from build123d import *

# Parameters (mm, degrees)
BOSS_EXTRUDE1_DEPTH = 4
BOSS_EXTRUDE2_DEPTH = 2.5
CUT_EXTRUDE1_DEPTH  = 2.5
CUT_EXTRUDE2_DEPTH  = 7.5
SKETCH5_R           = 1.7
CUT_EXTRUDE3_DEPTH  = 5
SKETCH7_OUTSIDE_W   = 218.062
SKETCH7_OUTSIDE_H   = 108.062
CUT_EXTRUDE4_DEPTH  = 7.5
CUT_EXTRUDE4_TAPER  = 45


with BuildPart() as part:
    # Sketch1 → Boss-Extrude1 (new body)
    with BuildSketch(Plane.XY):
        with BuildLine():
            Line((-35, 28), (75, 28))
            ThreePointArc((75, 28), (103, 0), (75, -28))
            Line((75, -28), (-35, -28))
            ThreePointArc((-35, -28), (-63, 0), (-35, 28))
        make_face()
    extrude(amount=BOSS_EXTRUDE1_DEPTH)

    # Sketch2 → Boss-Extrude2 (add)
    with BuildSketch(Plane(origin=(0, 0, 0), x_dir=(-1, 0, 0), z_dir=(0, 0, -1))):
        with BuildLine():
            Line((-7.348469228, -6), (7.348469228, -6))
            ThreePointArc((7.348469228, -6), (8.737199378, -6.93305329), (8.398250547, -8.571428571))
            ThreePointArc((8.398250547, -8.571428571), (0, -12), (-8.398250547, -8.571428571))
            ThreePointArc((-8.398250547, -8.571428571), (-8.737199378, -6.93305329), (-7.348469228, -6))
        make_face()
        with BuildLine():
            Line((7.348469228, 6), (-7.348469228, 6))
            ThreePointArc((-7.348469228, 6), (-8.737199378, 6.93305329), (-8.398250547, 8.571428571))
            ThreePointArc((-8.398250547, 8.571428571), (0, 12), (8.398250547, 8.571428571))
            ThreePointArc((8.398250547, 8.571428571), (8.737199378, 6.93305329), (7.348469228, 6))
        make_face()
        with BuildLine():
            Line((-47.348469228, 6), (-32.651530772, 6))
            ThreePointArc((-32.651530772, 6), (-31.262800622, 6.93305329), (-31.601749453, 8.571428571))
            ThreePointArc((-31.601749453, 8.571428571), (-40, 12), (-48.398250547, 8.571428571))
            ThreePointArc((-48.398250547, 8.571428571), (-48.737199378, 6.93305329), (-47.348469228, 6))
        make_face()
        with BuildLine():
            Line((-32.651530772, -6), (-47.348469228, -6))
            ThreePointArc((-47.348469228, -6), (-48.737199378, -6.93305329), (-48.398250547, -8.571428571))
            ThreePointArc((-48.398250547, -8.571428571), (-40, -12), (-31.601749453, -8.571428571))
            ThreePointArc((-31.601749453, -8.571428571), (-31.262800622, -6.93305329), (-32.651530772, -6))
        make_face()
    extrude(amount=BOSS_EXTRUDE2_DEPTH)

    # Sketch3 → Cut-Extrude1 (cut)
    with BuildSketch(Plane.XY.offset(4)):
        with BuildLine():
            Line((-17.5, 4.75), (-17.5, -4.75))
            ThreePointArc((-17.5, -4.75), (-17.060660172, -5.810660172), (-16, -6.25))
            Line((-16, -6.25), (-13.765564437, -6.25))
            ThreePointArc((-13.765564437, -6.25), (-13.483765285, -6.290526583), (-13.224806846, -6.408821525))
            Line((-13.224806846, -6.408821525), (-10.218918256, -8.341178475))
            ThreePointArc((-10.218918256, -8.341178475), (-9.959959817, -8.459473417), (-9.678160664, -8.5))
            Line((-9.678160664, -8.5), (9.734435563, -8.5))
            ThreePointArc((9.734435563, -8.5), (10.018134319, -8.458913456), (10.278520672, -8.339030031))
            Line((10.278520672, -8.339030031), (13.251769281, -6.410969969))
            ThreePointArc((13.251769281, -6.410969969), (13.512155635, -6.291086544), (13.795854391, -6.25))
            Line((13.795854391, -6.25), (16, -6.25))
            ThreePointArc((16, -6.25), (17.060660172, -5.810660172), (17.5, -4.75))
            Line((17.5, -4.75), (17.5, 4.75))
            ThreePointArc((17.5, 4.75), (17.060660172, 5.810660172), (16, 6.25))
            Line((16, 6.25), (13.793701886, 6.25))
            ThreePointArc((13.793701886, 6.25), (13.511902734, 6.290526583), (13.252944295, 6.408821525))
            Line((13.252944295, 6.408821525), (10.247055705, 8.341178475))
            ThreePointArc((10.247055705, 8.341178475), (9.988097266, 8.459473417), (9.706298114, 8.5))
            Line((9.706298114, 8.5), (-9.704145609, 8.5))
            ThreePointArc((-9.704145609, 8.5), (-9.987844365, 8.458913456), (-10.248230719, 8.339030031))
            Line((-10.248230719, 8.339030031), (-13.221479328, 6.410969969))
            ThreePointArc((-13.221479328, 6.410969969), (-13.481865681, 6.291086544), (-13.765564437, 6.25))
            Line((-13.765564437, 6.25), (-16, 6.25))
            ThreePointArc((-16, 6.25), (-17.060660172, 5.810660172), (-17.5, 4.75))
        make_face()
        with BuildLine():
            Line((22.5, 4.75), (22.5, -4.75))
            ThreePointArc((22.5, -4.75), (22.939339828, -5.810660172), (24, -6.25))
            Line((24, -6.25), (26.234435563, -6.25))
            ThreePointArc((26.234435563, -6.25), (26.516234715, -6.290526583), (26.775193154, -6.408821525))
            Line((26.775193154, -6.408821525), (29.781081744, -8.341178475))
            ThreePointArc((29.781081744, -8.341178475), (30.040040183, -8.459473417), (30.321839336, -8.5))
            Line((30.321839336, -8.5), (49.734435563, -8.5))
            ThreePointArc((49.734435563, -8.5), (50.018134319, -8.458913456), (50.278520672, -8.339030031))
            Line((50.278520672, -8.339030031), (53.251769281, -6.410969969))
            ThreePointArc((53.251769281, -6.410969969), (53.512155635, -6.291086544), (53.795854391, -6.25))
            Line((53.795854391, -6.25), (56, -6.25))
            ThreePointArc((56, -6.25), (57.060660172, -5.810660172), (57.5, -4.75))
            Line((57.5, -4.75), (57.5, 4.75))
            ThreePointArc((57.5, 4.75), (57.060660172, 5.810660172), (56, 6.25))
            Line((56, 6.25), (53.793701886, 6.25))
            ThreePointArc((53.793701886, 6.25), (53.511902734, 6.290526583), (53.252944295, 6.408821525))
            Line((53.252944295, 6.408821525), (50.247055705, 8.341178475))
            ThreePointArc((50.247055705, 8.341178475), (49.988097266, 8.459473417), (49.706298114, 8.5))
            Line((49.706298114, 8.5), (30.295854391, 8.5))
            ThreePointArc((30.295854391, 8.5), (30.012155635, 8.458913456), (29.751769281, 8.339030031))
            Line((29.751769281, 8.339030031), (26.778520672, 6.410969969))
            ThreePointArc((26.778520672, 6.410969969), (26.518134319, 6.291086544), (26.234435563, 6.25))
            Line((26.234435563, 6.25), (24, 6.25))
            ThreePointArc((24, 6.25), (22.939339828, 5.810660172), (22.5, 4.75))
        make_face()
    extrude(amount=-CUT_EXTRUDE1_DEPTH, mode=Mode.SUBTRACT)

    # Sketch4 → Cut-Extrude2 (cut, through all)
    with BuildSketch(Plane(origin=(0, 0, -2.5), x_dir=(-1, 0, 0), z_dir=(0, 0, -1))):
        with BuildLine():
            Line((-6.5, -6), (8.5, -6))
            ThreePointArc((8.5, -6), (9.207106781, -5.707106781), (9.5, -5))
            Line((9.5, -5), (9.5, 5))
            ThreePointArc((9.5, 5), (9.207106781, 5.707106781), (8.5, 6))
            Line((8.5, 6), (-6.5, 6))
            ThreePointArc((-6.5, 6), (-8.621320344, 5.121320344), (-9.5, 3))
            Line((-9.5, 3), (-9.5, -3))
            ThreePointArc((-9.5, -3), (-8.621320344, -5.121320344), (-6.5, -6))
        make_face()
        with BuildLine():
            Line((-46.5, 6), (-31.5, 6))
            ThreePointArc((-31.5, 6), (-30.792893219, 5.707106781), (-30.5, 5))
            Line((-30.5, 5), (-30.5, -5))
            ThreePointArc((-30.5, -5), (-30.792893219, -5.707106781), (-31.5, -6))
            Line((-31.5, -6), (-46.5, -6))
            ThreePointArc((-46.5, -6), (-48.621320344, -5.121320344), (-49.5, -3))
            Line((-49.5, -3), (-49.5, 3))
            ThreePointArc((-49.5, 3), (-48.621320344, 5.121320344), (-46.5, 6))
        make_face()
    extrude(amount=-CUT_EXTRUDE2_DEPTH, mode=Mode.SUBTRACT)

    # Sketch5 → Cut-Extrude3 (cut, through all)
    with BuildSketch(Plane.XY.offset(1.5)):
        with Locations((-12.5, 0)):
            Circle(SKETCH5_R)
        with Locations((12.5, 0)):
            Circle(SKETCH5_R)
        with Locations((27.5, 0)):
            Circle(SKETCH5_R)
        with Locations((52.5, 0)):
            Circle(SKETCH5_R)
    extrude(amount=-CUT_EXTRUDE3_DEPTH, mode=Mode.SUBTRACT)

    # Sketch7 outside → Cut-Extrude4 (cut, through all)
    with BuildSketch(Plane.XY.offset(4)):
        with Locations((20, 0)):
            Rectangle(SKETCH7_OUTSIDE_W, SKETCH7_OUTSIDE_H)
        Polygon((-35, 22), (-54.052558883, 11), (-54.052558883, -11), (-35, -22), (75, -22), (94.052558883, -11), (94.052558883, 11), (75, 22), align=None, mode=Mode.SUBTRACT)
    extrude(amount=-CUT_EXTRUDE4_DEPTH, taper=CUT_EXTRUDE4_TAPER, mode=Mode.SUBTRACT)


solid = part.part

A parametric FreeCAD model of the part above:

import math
import FreeCAD as App
import Part
import Sketcher
Q = App.Units.Quantity


def add_polygon(sketch, points):
    """Adds a closed chain of lines whose ends are joined by coincident constraints."""
    first, n = sketch.GeometryCount, len(points)
    for a, b in zip(points, points[1:] + points[:1]):
        sketch.addGeometry(Part.LineSegment(App.Vector(*a, 0), App.Vector(*b, 0)), False)
    for i in range(n):
        sketch.addConstraint(Sketcher.Constraint("Coincident", first + i, 2, first + (i + 1) % n, 1))

doc = App.newDocument("Part")
body = doc.addObject("PartDesign::Body", "Body")

sketch1 = body.newObject("Sketcher::SketchObject", "Sketch")
sketch1.AttachmentSupport = (doc.getObject("XY_Plane"), [""])
sketch1.MapMode = "FlatFace"
sketch1.addGeometry([
    Part.LineSegment(App.Vector(75, 28, 0), App.Vector(-35, 28, 0)),
    Part.ArcOfCircle(Part.Circle(App.Vector(-35, 0, 0), App.Vector(0, 0, 1), 28), math.radians(90), math.radians(270)),
    Part.LineSegment(App.Vector(-35, -28, 0), App.Vector(75, -28, 0)),
    Part.ArcOfCircle(Part.Circle(App.Vector(75, 0, 0), App.Vector(0, 0, 1), 28), math.radians(-90), math.radians(90)),
], False)
sketch1.addConstraint([
    Sketcher.Constraint("Tangent", 0, 2, 1, 1),
    Sketcher.Constraint("Tangent", 1, 2, 2, 1),
    Sketcher.Constraint("Tangent", 2, 2, 3, 1),
    Sketcher.Constraint("Tangent", 3, 2, 0, 1),
    Sketcher.Constraint("Horizontal", 0),
    Sketcher.Constraint("Horizontal", 2),
    Sketcher.Constraint("PointOnObject", 1, 3, -1),
    Sketcher.Constraint("Radius", 1, 28.0),
    Sketcher.Constraint("DistanceX", 0, 2, 0, 1, 110.0),
    Sketcher.Constraint("DistanceX", 1, 3, -1, 1, 35.0),
])
pad1 = body.newObject("PartDesign::Pad", "Pad")
pad1.Profile = sketch1
pad1.Length = 4

sketch2 = body.newObject("Sketcher::SketchObject", "Sketch001")
sketch2.AttachmentSupport = (doc.getObject("XY_Plane"), [""])
sketch2.MapMode = "FlatFace"
sketch2.addGeometry([
    Part.LineSegment(App.Vector(-7.3, -6, 0), App.Vector(7.3, -6, 0)),
    Part.ArcOfCircle(Part.Circle(App.Vector(7.3, -7.5, 0), App.Vector(0, 0, 1), 1.5), math.radians(-46), math.radians(90)),
    Part.ArcOfCircle(Part.Circle(App.Vector(0, 0, 0), App.Vector(0, 0, 1), 12), math.radians(-134), math.radians(-46)),
    Part.ArcOfCircle(Part.Circle(App.Vector(-7.3, -7.5, 0), App.Vector(0, 0, 1), 1.5), math.radians(90), math.radians(226)),
    Part.LineSegment(App.Vector(7.3, 6, 0), App.Vector(-7.3, 6, 0)),
    Part.ArcOfCircle(Part.Circle(App.Vector(-7.3, 7.5, 0), App.Vector(0, 0, 1), 1.5), math.radians(134), math.radians(270)),
    Part.ArcOfCircle(Part.Circle(App.Vector(0, 0, 0), App.Vector(0, 0, 1), 12), math.radians(46), math.radians(134)),
    Part.ArcOfCircle(Part.Circle(App.Vector(7.3, 7.5, 0), App.Vector(0, 0, 1), 1.5), math.radians(-90), math.radians(46)),
    Part.LineSegment(App.Vector(47.3, 6, 0), App.Vector(32.7, 6, 0)),
    Part.ArcOfCircle(Part.Circle(App.Vector(32.7, 7.5, 0), App.Vector(0, 0, 1), 1.5), math.radians(134), math.radians(270)),
    Part.ArcOfCircle(Part.Circle(App.Vector(40, 0, 0), App.Vector(0, 0, 1), 12), math.radians(46), math.radians(134)),
    Part.ArcOfCircle(Part.Circle(App.Vector(47.3, 7.5, 0), App.Vector(0, 0, 1), 1.5), math.radians(-90), math.radians(46)),
    Part.LineSegment(App.Vector(32.7, -6, 0), App.Vector(47.3, -6, 0)),
    Part.ArcOfCircle(Part.Circle(App.Vector(47.3, -7.5, 0), App.Vector(0, 0, 1), 1.5), math.radians(-46), math.radians(90)),
    Part.ArcOfCircle(Part.Circle(App.Vector(40, 0, 0), App.Vector(0, 0, 1), 12), math.radians(-134), math.radians(-46)),
    Part.ArcOfCircle(Part.Circle(App.Vector(32.7, -7.5, 0), App.Vector(0, 0, 1), 1.5), math.radians(90), math.radians(226)),
], False)
sketch2.addConstraint([
    Sketcher.Constraint("Tangent", 0, 2, 1, 2),
    Sketcher.Constraint("Tangent", 1, 1, 2, 2),
    Sketcher.Constraint("Tangent", 2, 1, 3, 2),
    Sketcher.Constraint("Tangent", 3, 1, 0, 1),
    Sketcher.Constraint("Tangent", 4, 2, 5, 2),
    Sketcher.Constraint("Tangent", 5, 1, 6, 2),
    Sketcher.Constraint("Tangent", 6, 1, 7, 2),
    Sketcher.Constraint("Tangent", 7, 1, 4, 1),
    Sketcher.Constraint("Tangent", 8, 2, 9, 2),
    Sketcher.Constraint("Tangent", 9, 1, 10, 2),
    Sketcher.Constraint("Tangent", 10, 1, 11, 2),
    Sketcher.Constraint("Tangent", 11, 1, 8, 1),
    Sketcher.Constraint("Tangent", 12, 2, 13, 2),
    Sketcher.Constraint("Tangent", 13, 1, 14, 2),
    Sketcher.Constraint("Tangent", 14, 1, 15, 2),
    Sketcher.Constraint("Tangent", 15, 1, 12, 1),
    Sketcher.Constraint("Horizontal", 0),
    Sketcher.Constraint("Horizontal", 4),
    Sketcher.Constraint("Horizontal", 8),
    Sketcher.Constraint("Horizontal", 12),
    Sketcher.Constraint("Coincident", 2, 3, -1, 1),
    Sketcher.Constraint("Coincident", 6, 3, -1, 1),
    Sketcher.Constraint("Coincident", 14, 3, 10, 3),
    Sketcher.Constraint("Equal", 1, 3),
    Sketcher.Constraint("Equal", 3, 5),
    Sketcher.Constraint("Equal", 2, 6),
    Sketcher.Constraint("Equal", 5, 7),
    Sketcher.Constraint("Equal", 7, 9),
    Sketcher.Constraint("Equal", 6, 10),
    Sketcher.Constraint("Equal", 9, 11),
    Sketcher.Constraint("Equal", 11, 13),
    Sketcher.Constraint("Equal", 10, 14),
    Sketcher.Constraint("Equal", 13, 15),
    Sketcher.Constraint("Symmetric", 11, 3, 13, 3, -1),
    Sketcher.Constraint("Horizontal", 7, 3, 9, 3),
    Sketcher.Constraint("Horizontal", 3, 3, 13, 3),
    Sketcher.Constraint("Radius", 2, 12.0),
    Sketcher.Constraint("Radius", 1, 1.5),
    Sketcher.Constraint("DistanceX", -1, 1, 10, 3, 40.0),
    Sketcher.Constraint("DistanceY", 0, 2, -1, 1, 6.0),
])
pad2 = body.newObject("PartDesign::Pad", "Pad001")
pad2.Profile = sketch2
pad2.Length = 2.5
pad2.Reversed = True

sketch3 = body.newObject("Sketcher::SketchObject", "Sketch002")
sketch3.AttachmentSupport = (doc.getObject("XY_Plane"), [""])
sketch3.MapMode = "FlatFace"
sketch3.AttachmentOffset = App.Placement(App.Vector(0, 0, 4), App.Rotation())
sketch3.addGeometry([
    Part.LineSegment(App.Vector(-17.5, 4.8, 0), App.Vector(-17.5, -4.8, 0)),
    Part.ArcOfCircle(Part.Circle(App.Vector(-16, -4.8, 0), App.Vector(0, 0, 1), 1.5), math.radians(180), math.radians(270)),
    Part.LineSegment(App.Vector(-16, -6.2, 0), App.Vector(-13.8, -6.2, 0)),
    Part.ArcOfCircle(Part.Circle(App.Vector(-13.8, -7.2, 0), App.Vector(0, 0, 1), 1), math.radians(57), math.radians(90)),
    Part.LineSegment(App.Vector(-13.2, -6.4, 0), App.Vector(-10.2, -8.3, 0)),
    Part.ArcOfCircle(Part.Circle(App.Vector(-9.7, -7.5, 0), App.Vector(0, 0, 1), 1), math.radians(-123), math.radians(-90)),
    Part.LineSegment(App.Vector(-9.7, -8.5, 0), App.Vector(9.7, -8.5, 0)),
    Part.ArcOfCircle(Part.Circle(App.Vector(9.7, -7.5, 0), App.Vector(0, 0, 1), 1), math.radians(-90), math.radians(-57)),
    Part.LineSegment(App.Vector(10.3, -8.3, 0), App.Vector(13.3, -6.4, 0)),
    Part.ArcOfCircle(Part.Circle(App.Vector(13.8, -7.2, 0), App.Vector(0, 0, 1), 1), math.radians(90), math.radians(123)),
    Part.LineSegment(App.Vector(13.8, -6.2, 0), App.Vector(16, -6.2, 0)),
    Part.ArcOfCircle(Part.Circle(App.Vector(16, -4.8, 0), App.Vector(0, 0, 1), 1.5), math.radians(-90), math.radians(0)),
    Part.LineSegment(App.Vector(17.5, -4.8, 0), App.Vector(17.5, 4.8, 0)),
    Part.ArcOfCircle(Part.Circle(App.Vector(16, 4.8, 0), App.Vector(0, 0, 1), 1.5), math.radians(0), math.radians(90)),
    Part.LineSegment(App.Vector(16, 6.2, 0), App.Vector(13.8, 6.2, 0)),
    Part.ArcOfCircle(Part.Circle(App.Vector(13.8, 7.2, 0), App.Vector(0, 0, 1), 1), math.radians(-123), math.radians(-90)),
    Part.LineSegment(App.Vector(13.3, 6.4, 0), App.Vector(10.2, 8.3, 0)),
    Part.ArcOfCircle(Part.Circle(App.Vector(9.7, 7.5, 0), App.Vector(0, 0, 1), 1), math.radians(57), math.radians(90)),
    Part.LineSegment(App.Vector(9.7, 8.5, 0), App.Vector(-9.7, 8.5, 0)),
    Part.ArcOfCircle(Part.Circle(App.Vector(-9.7, 7.5, 0), App.Vector(0, 0, 1), 1), math.radians(90), math.radians(123)),
    Part.LineSegment(App.Vector(-10.2, 8.3, 0), App.Vector(-13.2, 6.4, 0)),
    Part.ArcOfCircle(Part.Circle(App.Vector(-13.8, 7.2, 0), App.Vector(0, 0, 1), 1), math.radians(-90), math.radians(-57)),
    Part.LineSegment(App.Vector(-13.8, 6.2, 0), App.Vector(-16, 6.2, 0)),
    Part.ArcOfCircle(Part.Circle(App.Vector(-16, 4.8, 0), App.Vector(0, 0, 1), 1.5), math.radians(90), math.radians(180)),
    Part.LineSegment(App.Vector(22.5, 4.8, 0), App.Vector(22.5, -4.8, 0)),
    Part.ArcOfCircle(Part.Circle(App.Vector(24, -4.8, 0), App.Vector(0, 0, 1), 1.5), math.radians(180), math.radians(270)),
    Part.LineSegment(App.Vector(24, -6.2, 0), App.Vector(26.2, -6.2, 0)),
    Part.ArcOfCircle(Part.Circle(App.Vector(26.2, -7.2, 0), App.Vector(0, 0, 1), 1), math.radians(57), math.radians(90)),
    Part.LineSegment(App.Vector(26.8, -6.4, 0), App.Vector(29.8, -8.3, 0)),
    Part.ArcOfCircle(Part.Circle(App.Vector(30.3, -7.5, 0), App.Vector(0, 0, 1), 1), math.radians(-123), math.radians(-90)),
    Part.LineSegment(App.Vector(30.3, -8.5, 0), App.Vector(49.7, -8.5, 0)),
    Part.ArcOfCircle(Part.Circle(App.Vector(49.7, -7.5, 0), App.Vector(0, 0, 1), 1), math.radians(-90), math.radians(-57)),
    Part.LineSegment(App.Vector(50.3, -8.3, 0), App.Vector(53.3, -6.4, 0)),
    Part.ArcOfCircle(Part.Circle(App.Vector(53.8, -7.2, 0), App.Vector(0, 0, 1), 1), math.radians(90), math.radians(123)),
    Part.LineSegment(App.Vector(53.8, -6.2, 0), App.Vector(56, -6.2, 0)),
    Part.ArcOfCircle(Part.Circle(App.Vector(56, -4.8, 0), App.Vector(0, 0, 1), 1.5), math.radians(-90), math.radians(0)),
    Part.LineSegment(App.Vector(57.5, -4.8, 0), App.Vector(57.5, 4.8, 0)),
    Part.ArcOfCircle(Part.Circle(App.Vector(56, 4.8, 0), App.Vector(0, 0, 1), 1.5), math.radians(0), math.radians(90)),
    Part.LineSegment(App.Vector(56, 6.2, 0), App.Vector(53.8, 6.2, 0)),
    Part.ArcOfCircle(Part.Circle(App.Vector(53.8, 7.2, 0), App.Vector(0, 0, 1), 1), math.radians(-123), math.radians(-90)),
    Part.LineSegment(App.Vector(53.3, 6.4, 0), App.Vector(50.2, 8.3, 0)),
    Part.ArcOfCircle(Part.Circle(App.Vector(49.7, 7.5, 0), App.Vector(0, 0, 1), 1), math.radians(57), math.radians(90)),
    Part.LineSegment(App.Vector(49.7, 8.5, 0), App.Vector(30.3, 8.5, 0)),
    Part.ArcOfCircle(Part.Circle(App.Vector(30.3, 7.5, 0), App.Vector(0, 0, 1), 1), math.radians(90), math.radians(123)),
    Part.LineSegment(App.Vector(29.8, 8.3, 0), App.Vector(26.8, 6.4, 0)),
    Part.ArcOfCircle(Part.Circle(App.Vector(26.2, 7.2, 0), App.Vector(0, 0, 1), 1), math.radians(-90), math.radians(-57)),
    Part.LineSegment(App.Vector(26.2, 6.2, 0), App.Vector(24, 6.2, 0)),
    Part.ArcOfCircle(Part.Circle(App.Vector(24, 4.8, 0), App.Vector(0, 0, 1), 1.5), math.radians(90), math.radians(180)),
], False)
sketch3.addConstraint([
    Sketcher.Constraint("Tangent", 0, 2, 1, 1),
    Sketcher.Constraint("Tangent", 1, 2, 2, 1),
    Sketcher.Constraint("Tangent", 2, 2, 3, 2),
    Sketcher.Constraint("Tangent", 3, 1, 4, 1),
    Sketcher.Constraint("Tangent", 4, 2, 5, 1),
    Sketcher.Constraint("Tangent", 5, 2, 6, 1),
    Sketcher.Constraint("Tangent", 6, 2, 7, 1),
    Sketcher.Constraint("Tangent", 7, 2, 8, 1),
    Sketcher.Constraint("Tangent", 8, 2, 9, 2),
    Sketcher.Constraint("Tangent", 9, 1, 10, 1),
    Sketcher.Constraint("Tangent", 10, 2, 11, 1),
    Sketcher.Constraint("Tangent", 11, 2, 12, 1),
    Sketcher.Constraint("Tangent", 12, 2, 13, 1),
    Sketcher.Constraint("Tangent", 13, 2, 14, 1),
    Sketcher.Constraint("Tangent", 14, 2, 15, 2),
    Sketcher.Constraint("Tangent", 15, 1, 16, 1),
    Sketcher.Constraint("Tangent", 16, 2, 17, 1),
    Sketcher.Constraint("Tangent", 17, 2, 18, 1),
    Sketcher.Constraint("Tangent", 18, 2, 19, 1),
    Sketcher.Constraint("Tangent", 19, 2, 20, 1),
    Sketcher.Constraint("Tangent", 20, 2, 21, 2),
    Sketcher.Constraint("Tangent", 21, 1, 22, 1),
    Sketcher.Constraint("Tangent", 22, 2, 23, 1),
    Sketcher.Constraint("Tangent", 23, 2, 0, 1),
    Sketcher.Constraint("Tangent", 24, 2, 25, 1),
    Sketcher.Constraint("Tangent", 25, 2, 26, 1),
    Sketcher.Constraint("Tangent", 26, 2, 27, 2),
    Sketcher.Constraint("Tangent", 27, 1, 28, 1),
    Sketcher.Constraint("Tangent", 28, 2, 29, 1),
    Sketcher.Constraint("Tangent", 29, 2, 30, 1),
    Sketcher.Constraint("Tangent", 30, 2, 31, 1),
    Sketcher.Constraint("Tangent", 31, 2, 32, 1),
    Sketcher.Constraint("Tangent", 32, 2, 33, 2),
    Sketcher.Constraint("Tangent", 33, 1, 34, 1),
    Sketcher.Constraint("Tangent", 34, 2, 35, 1),
    Sketcher.Constraint("Tangent", 35, 2, 36, 1),
    Sketcher.Constraint("Tangent", 36, 2, 37, 1),
    Sketcher.Constraint("Tangent", 37, 2, 38, 1),
    Sketcher.Constraint("Tangent", 38, 2, 39, 2),
    Sketcher.Constraint("Tangent", 39, 1, 40, 1),
    Sketcher.Constraint("Tangent", 40, 2, 41, 1),
    Sketcher.Constraint("Tangent", 41, 2, 42, 1),
    Sketcher.Constraint("Tangent", 42, 2, 43, 1),
    Sketcher.Constraint("Tangent", 43, 2, 44, 1),
    Sketcher.Constraint("Tangent", 44, 2, 45, 2),
    Sketcher.Constraint("Tangent", 45, 1, 46, 1),
    Sketcher.Constraint("Tangent", 46, 2, 47, 1),
    Sketcher.Constraint("Tangent", 47, 2, 24, 1),
    Sketcher.Constraint("Vertical", 0),
    Sketcher.Constraint("Horizontal", 2),
    Sketcher.Constraint("Horizontal", 6),
    Sketcher.Constraint("Horizontal", 10),
    Sketcher.Constraint("Vertical", 12),
    Sketcher.Constraint("Horizontal", 14),
    Sketcher.Constraint("Horizontal", 18),
    Sketcher.Constraint("Horizontal", 22),
    Sketcher.Constraint("Vertical", 24),
    Sketcher.Constraint("Horizontal", 26),
    Sketcher.Constraint("Horizontal", 30),
    Sketcher.Constraint("Horizontal", 34),
    Sketcher.Constraint("Vertical", 36),
    Sketcher.Constraint("Horizontal", 38),
    Sketcher.Constraint("Horizontal", 42),
    Sketcher.Constraint("Horizontal", 46),
    Sketcher.Constraint("Equal", 3, 5),
    Sketcher.Constraint("Equal", 5, 7),
    Sketcher.Constraint("Equal", 7, 9),
    Sketcher.Constraint("Equal", 1, 11),
    Sketcher.Constraint("Equal", 11, 13),
    Sketcher.Constraint("Equal", 9, 15),
    Sketcher.Constraint("Equal", 15, 17),
    Sketcher.Constraint("Equal", 17, 19),
    Sketcher.Constraint("Equal", 19, 21),
    Sketcher.Constraint("Equal", 13, 23),
    Sketcher.Constraint("Equal", 23, 25),
    Sketcher.Constraint("Equal", 21, 27),
    Sketcher.Constraint("Equal", 27, 29),
    Sketcher.Constraint("Equal", 29, 31),
    Sketcher.Constraint("Equal", 31, 33),
    Sketcher.Constraint("Equal", 25, 35),
    Sketcher.Constraint("Equal", 35, 37),
    Sketcher.Constraint("Equal", 33, 39),
    Sketcher.Constraint("Equal", 39, 41),
    Sketcher.Constraint("Equal", 41, 43),
    Sketcher.Constraint("Equal", 43, 45),
    Sketcher.Constraint("Equal", 37, 47),
    Sketcher.Constraint("Symmetric", 1, 3, 13, 3, -1, 1),
    Sketcher.Constraint("Symmetric", 3, 3, 21, 3, -1),
    Sketcher.Constraint("Symmetric", 27, 3, 45, 3, -1),
    Sketcher.Constraint("Parallel", 4, 16),
    Sketcher.Constraint("Parallel", 8, 20),
    Sketcher.Constraint("Parallel", 16, 28),
    Sketcher.Constraint("Parallel", 20, 32),
    Sketcher.Constraint("Parallel", 28, 40),
    Sketcher.Constraint("Parallel", 32, 44),
    Sketcher.Constraint("Horizontal", 3, 3, 9, 3),
    Sketcher.Constraint("Horizontal", 11, 3, 25, 3),
    Sketcher.Constraint("Horizontal", 7, 3, 29, 3),
    Sketcher.Constraint("Horizontal", 27, 3, 33, 3),
    Sketcher.Constraint("Horizontal", 23, 3, 37, 3),
    Sketcher.Constraint("Horizontal", 19, 3, 41, 3),
    Sketcher.Constraint("Equal", 22, 26),
    Sketcher.Constraint("Equal", 6, 30),
    Sketcher.Constraint("Equal", 10, 34),
    Sketcher.Constraint("Equal", 14, 38),
    Sketcher.Constraint("Equal", 4, 16),
    Sketcher.Constraint("Radius", 3, 1.0),
    Sketcher.Constraint("Radius", 1, 1.5),
    Sketcher.Constraint("DistanceY", 0, 2, 0, 1, 9.5),
    Sketcher.Constraint("DistanceX", 1, 3, -1, 1, 16.0),
    Sketcher.Constraint("DistanceX", -1, 1, 25, 3, 24.0),
    Sketcher.Constraint("DistanceY", 5, 3, -1, 1, 7.5),
    Sketcher.Constraint("DistanceX", 14, 2, 14, 1, 2.206298),
    Sketcher.Constraint("DistanceX", -1, 1, 17, 3, 9.706298),
    Sketcher.Constraint("DistanceX", 2, 1, 2, 2, 2.234436),
    Sketcher.Constraint("DistanceX", 6, 1, 6, 2, 19.412596),
    Sketcher.Constraint("DistanceX", 10, 1, 10, 2, 2.204146),
])
pocket1 = body.newObject("PartDesign::Pocket", "Pocket")
pocket1.Profile = sketch3
pocket1.Length = 2.5

sketch4 = body.newObject("Sketcher::SketchObject", "Sketch003")
sketch4.AttachmentSupport = (doc.getObject("XY_Plane"), [""])
sketch4.MapMode = "FlatFace"
sketch4.AttachmentOffset = App.Placement(App.Vector(0, 0, -2.5), App.Rotation())
sketch4.addGeometry([
    Part.LineSegment(App.Vector(6.5, -6, 0), App.Vector(-8.5, -6, 0)),
    Part.ArcOfCircle(Part.Circle(App.Vector(-8.5, -5, 0), App.Vector(0, 0, 1), 1), math.radians(-180), math.radians(-90)),
    Part.LineSegment(App.Vector(-9.5, -5, 0), App.Vector(-9.5, 5, 0)),
    Part.ArcOfCircle(Part.Circle(App.Vector(-8.5, 5, 0), App.Vector(0, 0, 1), 1), math.radians(90), math.radians(180)),
    Part.LineSegment(App.Vector(-8.5, 6, 0), App.Vector(6.5, 6, 0)),
    Part.ArcOfCircle(Part.Circle(App.Vector(6.5, 3, 0), App.Vector(0, 0, 1), 3), math.radians(0), math.radians(90)),
    Part.LineSegment(App.Vector(9.5, 3, 0), App.Vector(9.5, -3, 0)),
    Part.ArcOfCircle(Part.Circle(App.Vector(6.5, -3, 0), App.Vector(0, 0, 1), 3), math.radians(-90), math.radians(0)),
    Part.LineSegment(App.Vector(31.5, 6, 0), App.Vector(46.5, 6, 0)),
    Part.ArcOfCircle(Part.Circle(App.Vector(46.5, 3, 0), App.Vector(0, 0, 1), 3), math.radians(0), math.radians(90)),
    Part.LineSegment(App.Vector(49.5, 3, 0), App.Vector(49.5, -3, 0)),
    Part.ArcOfCircle(Part.Circle(App.Vector(46.5, -3, 0), App.Vector(0, 0, 1), 3), math.radians(-90), math.radians(0)),
    Part.LineSegment(App.Vector(46.5, -6, 0), App.Vector(31.5, -6, 0)),
    Part.ArcOfCircle(Part.Circle(App.Vector(31.5, -5, 0), App.Vector(0, 0, 1), 1), math.radians(-180), math.radians(-90)),
    Part.LineSegment(App.Vector(30.5, -5, 0), App.Vector(30.5, 5, 0)),
    Part.ArcOfCircle(Part.Circle(App.Vector(31.5, 5, 0), App.Vector(0, 0, 1), 1), math.radians(90), math.radians(180)),
], False)
sketch4.addConstraint([
    Sketcher.Constraint("Tangent", 0, 2, 1, 2),
    Sketcher.Constraint("Tangent", 1, 1, 2, 1),
    Sketcher.Constraint("Tangent", 2, 2, 3, 2),
    Sketcher.Constraint("Tangent", 3, 1, 4, 1),
    Sketcher.Constraint("Tangent", 4, 2, 5, 2),
    Sketcher.Constraint("Tangent", 5, 1, 6, 1),
    Sketcher.Constraint("Tangent", 6, 2, 7, 2),
    Sketcher.Constraint("Tangent", 7, 1, 0, 1),
    Sketcher.Constraint("Tangent", 8, 2, 9, 2),
    Sketcher.Constraint("Tangent", 9, 1, 10, 1),
    Sketcher.Constraint("Tangent", 10, 2, 11, 2),
    Sketcher.Constraint("Tangent", 11, 1, 12, 1),
    Sketcher.Constraint("Tangent", 12, 2, 13, 2),
    Sketcher.Constraint("Tangent", 13, 1, 14, 1),
    Sketcher.Constraint("Tangent", 14, 2, 15, 2),
    Sketcher.Constraint("Tangent", 15, 1, 8, 1),
    Sketcher.Constraint("Horizontal", 0),
    Sketcher.Constraint("Vertical", 2),
    Sketcher.Constraint("Horizontal", 4),
    Sketcher.Constraint("Vertical", 6),
    Sketcher.Constraint("Horizontal", 8),
    Sketcher.Constraint("Vertical", 10),
    Sketcher.Constraint("Horizontal", 12),
    Sketcher.Constraint("Vertical", 14),
    Sketcher.Constraint("Equal", 1, 3),
    Sketcher.Constraint("Equal", 5, 7),
    Sketcher.Constraint("Equal", 7, 9),
    Sketcher.Constraint("Equal", 9, 11),
    Sketcher.Constraint("Equal", 3, 13),
    Sketcher.Constraint("Equal", 13, 15),
    Sketcher.Constraint("Horizontal", 5, 3, 9, 3),
    Sketcher.Constraint("Horizontal", 7, 3, 11, 3),
    Sketcher.Constraint("Equal", 4, 8),
    Sketcher.Constraint("Radius", 1, 1.0),
    Sketcher.Constraint("Radius", 5, 3.0),
    Sketcher.Constraint("DistanceX", 0, 2, 0, 1, 15.0),
    Sketcher.Constraint("DistanceY", 2, 1, 2, 2, 10.0),
    Sketcher.Constraint("DistanceY", 1, 3, -1, 1, 5.0),
    Sketcher.Constraint("DistanceX", 5, 3, 9, 3, 40.0),
    Sketcher.Constraint("DistanceX", 1, 3, -1, 1, 8.5),
])
pocket2 = body.newObject("PartDesign::Pocket", "Pocket001")
pocket2.Profile = sketch4
pocket2.Type = "ThroughAll"
pocket2.Reversed = True

sketch5 = body.newObject("Sketcher::SketchObject", "Sketch004")
sketch5.AttachmentSupport = (doc.getObject("XY_Plane"), [""])
sketch5.MapMode = "FlatFace"
sketch5.AttachmentOffset = App.Placement(App.Vector(0, 0, 1.5), App.Rotation())
sketch5.addGeometry([
    Part.Circle(App.Vector(-12.5, 0, 0), App.Vector(0, 0, 1), 1.7),
    Part.Circle(App.Vector(12.5, 0, 0), App.Vector(0, 0, 1), 1.7),
    Part.Circle(App.Vector(27.5, 0, 0), App.Vector(0, 0, 1), 1.7),
    Part.Circle(App.Vector(52.5, 0, 0), App.Vector(0, 0, 1), 1.7),
], False)
sketch5.addConstraint([
    Sketcher.Constraint("Equal", 0, 1),
    Sketcher.Constraint("Equal", 1, 2),
    Sketcher.Constraint("Equal", 2, 3),
    Sketcher.Constraint("Symmetric", 0, 3, 1, 3, -1, 1),
    Sketcher.Constraint("PointOnObject", 0, 3, -1),
    Sketcher.Constraint("PointOnObject", 2, 3, -1),
    Sketcher.Constraint("PointOnObject", 3, 3, -1),
    Sketcher.Constraint("Diameter", 0, 3.4),
    Sketcher.Constraint("DistanceX", 0, 3, 1, 3, 25.0),
    Sketcher.Constraint("DistanceX", 1, 3, 2, 3, 15.0),
    Sketcher.Constraint("DistanceX", 2, 3, 3, 3, 25.0),
])
pocket3 = body.newObject("PartDesign::Pocket", "Pocket002")
pocket3.Profile = sketch5
pocket3.Type = "ThroughAll"

sketch6 = body.newObject("Sketcher::SketchObject", "Sketch005")
sketch6.AttachmentSupport = (doc.getObject("XY_Plane"), [""])
sketch6.MapMode = "FlatFace"
sketch6.AttachmentOffset = App.Placement(App.Vector(0, 0, 4), App.Rotation())
add_polygon(sketch6, [(-89, 54), (-89, -54), (129, -54), (129, 54)])
add_polygon(sketch6, [(-54, 11), (-35, 22), (75, 22), (94, 11), (94, -11), (75, -22), (-35, -22), (-54, -11)])
sketch6.addConstraint([
    Sketcher.Constraint("Vertical", 0),
    Sketcher.Constraint("Horizontal", 1),
    Sketcher.Constraint("Vertical", 2),
    Sketcher.Constraint("Horizontal", 3),
    Sketcher.Constraint("Horizontal", 5),
    Sketcher.Constraint("Vertical", 7),
    Sketcher.Constraint("Horizontal", 9),
    Sketcher.Constraint("Vertical", 11),
    Sketcher.Constraint("Symmetric", 5, 2, 8, 2, -1),
    Sketcher.Constraint("Parallel", 4, 8),
    Sketcher.Constraint("Parallel", 6, 10),
    Sketcher.Constraint("Horizontal", 7, 2, 10, 2),
    Sketcher.Constraint("Horizontal", 6, 2, 11, 2),
    Sketcher.Constraint("Vertical", 4, 2, 9, 2),
    Sketcher.Constraint("DistanceX", 5, 1, 5, 2, 110.0),
    Sketcher.Constraint("DistanceY", 7, 2, 7, 1, 22.0),
    Sketcher.Constraint("Angle", 4, Q("30 deg")),
    Sketcher.Constraint("Distance", 4, 22.0),
    Sketcher.Constraint("DistanceX", 4, 2, -1, 1, 35.0),
    Sketcher.Constraint("DistanceX", 1, 1, 1, 2, 218.062),
    Sketcher.Constraint("DistanceY", 0, 2, 0, 1, 108.062),
    Sketcher.Constraint("DistanceX", 0, 2, -1, 1, 89.031),
    Sketcher.Constraint("DistanceY", 0, 2, -1, 1, 54.031),
])
pocket4 = body.newObject("PartDesign::Pocket", "Pocket003")
pocket4.Profile = sketch6
pocket4.Length = 7.5
pocket4.TaperAngle = 45

doc.recompute()
